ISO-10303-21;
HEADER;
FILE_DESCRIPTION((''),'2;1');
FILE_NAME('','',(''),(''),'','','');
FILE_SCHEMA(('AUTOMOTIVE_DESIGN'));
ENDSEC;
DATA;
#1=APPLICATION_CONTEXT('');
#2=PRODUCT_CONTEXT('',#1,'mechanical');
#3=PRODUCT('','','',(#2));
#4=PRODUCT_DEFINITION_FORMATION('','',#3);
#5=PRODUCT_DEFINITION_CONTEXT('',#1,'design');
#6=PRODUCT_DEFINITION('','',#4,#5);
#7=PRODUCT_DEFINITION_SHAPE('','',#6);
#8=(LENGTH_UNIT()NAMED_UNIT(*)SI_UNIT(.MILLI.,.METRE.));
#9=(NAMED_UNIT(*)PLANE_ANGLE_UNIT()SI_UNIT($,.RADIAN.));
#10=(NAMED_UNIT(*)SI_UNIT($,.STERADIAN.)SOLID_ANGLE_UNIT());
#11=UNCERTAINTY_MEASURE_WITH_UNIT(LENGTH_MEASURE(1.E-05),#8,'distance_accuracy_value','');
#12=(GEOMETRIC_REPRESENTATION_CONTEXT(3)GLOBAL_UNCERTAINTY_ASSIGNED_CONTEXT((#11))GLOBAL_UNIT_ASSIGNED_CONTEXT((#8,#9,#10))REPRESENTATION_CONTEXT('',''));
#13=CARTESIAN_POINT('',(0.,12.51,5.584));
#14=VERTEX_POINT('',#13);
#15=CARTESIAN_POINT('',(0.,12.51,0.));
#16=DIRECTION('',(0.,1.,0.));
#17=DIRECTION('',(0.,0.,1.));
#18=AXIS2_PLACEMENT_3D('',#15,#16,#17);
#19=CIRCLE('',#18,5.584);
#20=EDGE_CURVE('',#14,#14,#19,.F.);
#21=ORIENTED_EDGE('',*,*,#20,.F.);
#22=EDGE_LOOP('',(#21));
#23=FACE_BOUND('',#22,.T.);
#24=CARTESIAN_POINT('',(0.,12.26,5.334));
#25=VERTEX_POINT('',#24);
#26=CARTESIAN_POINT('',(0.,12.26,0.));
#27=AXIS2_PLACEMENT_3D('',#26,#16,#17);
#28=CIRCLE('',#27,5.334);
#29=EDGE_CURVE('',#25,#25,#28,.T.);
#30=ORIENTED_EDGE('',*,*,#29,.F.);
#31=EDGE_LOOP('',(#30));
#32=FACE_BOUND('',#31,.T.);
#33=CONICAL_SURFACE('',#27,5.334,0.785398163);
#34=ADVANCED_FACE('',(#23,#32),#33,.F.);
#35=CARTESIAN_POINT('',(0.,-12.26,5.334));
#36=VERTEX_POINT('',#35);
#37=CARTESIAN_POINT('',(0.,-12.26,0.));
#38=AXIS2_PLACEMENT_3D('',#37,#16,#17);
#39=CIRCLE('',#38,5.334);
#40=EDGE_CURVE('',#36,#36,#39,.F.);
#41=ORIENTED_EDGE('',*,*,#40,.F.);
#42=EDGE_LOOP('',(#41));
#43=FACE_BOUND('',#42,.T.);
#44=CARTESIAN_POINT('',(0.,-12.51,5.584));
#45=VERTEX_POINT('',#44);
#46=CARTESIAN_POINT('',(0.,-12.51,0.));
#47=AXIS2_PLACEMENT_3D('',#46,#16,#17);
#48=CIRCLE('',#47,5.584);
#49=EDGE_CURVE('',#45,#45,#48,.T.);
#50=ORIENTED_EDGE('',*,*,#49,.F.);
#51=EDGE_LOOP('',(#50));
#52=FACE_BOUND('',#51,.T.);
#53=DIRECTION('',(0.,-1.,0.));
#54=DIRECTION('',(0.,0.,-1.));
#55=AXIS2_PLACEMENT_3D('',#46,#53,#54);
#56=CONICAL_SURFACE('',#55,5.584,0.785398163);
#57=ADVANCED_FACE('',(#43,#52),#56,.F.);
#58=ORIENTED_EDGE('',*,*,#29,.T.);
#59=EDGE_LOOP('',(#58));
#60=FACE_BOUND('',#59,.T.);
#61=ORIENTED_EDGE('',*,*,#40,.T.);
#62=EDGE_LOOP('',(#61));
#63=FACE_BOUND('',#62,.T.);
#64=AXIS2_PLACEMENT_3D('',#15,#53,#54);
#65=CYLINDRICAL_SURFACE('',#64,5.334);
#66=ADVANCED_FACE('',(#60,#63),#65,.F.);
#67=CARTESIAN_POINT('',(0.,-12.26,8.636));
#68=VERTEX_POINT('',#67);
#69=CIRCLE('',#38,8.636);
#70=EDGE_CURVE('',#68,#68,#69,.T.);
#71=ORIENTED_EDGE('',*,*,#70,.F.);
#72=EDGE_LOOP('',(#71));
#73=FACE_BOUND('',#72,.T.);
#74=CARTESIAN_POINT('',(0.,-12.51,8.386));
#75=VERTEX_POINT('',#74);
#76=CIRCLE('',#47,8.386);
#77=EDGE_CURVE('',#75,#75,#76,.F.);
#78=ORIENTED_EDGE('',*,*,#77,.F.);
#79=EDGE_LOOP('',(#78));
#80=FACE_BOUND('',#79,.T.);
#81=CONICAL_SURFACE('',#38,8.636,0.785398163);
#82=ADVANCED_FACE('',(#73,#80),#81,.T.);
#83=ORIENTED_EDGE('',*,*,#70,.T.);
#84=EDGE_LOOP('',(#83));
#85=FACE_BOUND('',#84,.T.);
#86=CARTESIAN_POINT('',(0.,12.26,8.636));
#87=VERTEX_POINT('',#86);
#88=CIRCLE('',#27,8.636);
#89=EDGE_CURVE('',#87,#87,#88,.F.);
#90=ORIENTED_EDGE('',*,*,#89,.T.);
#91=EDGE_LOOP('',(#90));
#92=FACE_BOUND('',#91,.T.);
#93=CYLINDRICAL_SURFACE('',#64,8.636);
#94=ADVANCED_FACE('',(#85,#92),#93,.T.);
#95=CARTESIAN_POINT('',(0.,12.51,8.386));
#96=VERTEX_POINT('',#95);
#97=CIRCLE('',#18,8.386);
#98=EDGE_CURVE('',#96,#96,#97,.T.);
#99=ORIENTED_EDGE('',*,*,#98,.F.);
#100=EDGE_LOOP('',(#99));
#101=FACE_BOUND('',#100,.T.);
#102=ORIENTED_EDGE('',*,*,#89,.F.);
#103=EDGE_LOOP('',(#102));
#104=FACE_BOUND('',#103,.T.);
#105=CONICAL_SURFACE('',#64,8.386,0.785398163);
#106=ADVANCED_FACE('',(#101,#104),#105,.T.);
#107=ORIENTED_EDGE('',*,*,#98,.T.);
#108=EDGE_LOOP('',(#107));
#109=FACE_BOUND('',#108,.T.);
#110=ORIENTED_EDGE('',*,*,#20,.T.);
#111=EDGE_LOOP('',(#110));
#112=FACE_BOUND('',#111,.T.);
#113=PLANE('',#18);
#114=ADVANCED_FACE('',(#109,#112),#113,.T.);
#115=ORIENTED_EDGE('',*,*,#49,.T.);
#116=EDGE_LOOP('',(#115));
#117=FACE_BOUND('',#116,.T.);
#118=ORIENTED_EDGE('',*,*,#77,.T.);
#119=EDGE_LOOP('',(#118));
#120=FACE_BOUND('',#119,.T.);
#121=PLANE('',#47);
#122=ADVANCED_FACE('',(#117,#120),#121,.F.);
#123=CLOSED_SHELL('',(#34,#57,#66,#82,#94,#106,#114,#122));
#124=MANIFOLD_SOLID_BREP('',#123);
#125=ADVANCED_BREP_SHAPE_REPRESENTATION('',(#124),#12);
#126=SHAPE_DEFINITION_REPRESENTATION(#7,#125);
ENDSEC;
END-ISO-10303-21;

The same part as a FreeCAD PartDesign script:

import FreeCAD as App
import Part
import Sketcher

V = App.Vector
Q = App.Units.Quantity


def edges_at(feature, points):
    """Names of the edges that pass closest to the given points."""
    edges = feature.Shape.Edges
    near = lambda p: min(range(len(edges)), key=lambda i: edges[i].distToShape(Part.Vertex(*p))[0])
    return sorted({f"Edge{near(p) + 1}" for p in points})

doc = App.newDocument("Part")
body = doc.addObject("PartDesign::Body", "Body")

# Sketch on XZ plane
sketch1 = body.newObject("Sketcher::SketchObject", "Sketch")
sketch1.AttachmentSupport = (doc.getObject("XZ_Plane"), [""])
sketch1.MapMode = "FlatFace"
sketch1.addGeometry(Part.Circle(V(0, 0, 0), V(0, 0, 1), 9), False)
sketch1.addGeometry(Part.Circle(V(0, 0, 0), V(0, 0, 1), 5), False)
sketch1.addConstraint(Sketcher.Constraint("Coincident", 0, 3, -1, 1))
sketch1.addConstraint(Sketcher.Constraint("Coincident", 1, 3, -1, 1))
sketch1.addConstraint(Sketcher.Constraint("Diameter", 0, Q("0.68 in")))
sketch1.addConstraint(Sketcher.Constraint("Diameter", 1, Q("0.42 in")))
pad1 = body.newObject("PartDesign::Pad", "Pad")
pad1.Profile = sketch1
pad1.Length = 25.02
pad1.Midplane = True
doc.recompute()

chamfer = body.newObject("PartDesign::Chamfer", "Chamfer")
chamfer.Base = (pad1, edges_at(pad1, [
    (-8.636, -12.51, 0),
    (-8.636, 12.51, 0),
    (-5.334, -12.51, 0),
    (-5.334, 12.51, 0),
]))
chamfer.Size = 0.25

doc.recompute()
